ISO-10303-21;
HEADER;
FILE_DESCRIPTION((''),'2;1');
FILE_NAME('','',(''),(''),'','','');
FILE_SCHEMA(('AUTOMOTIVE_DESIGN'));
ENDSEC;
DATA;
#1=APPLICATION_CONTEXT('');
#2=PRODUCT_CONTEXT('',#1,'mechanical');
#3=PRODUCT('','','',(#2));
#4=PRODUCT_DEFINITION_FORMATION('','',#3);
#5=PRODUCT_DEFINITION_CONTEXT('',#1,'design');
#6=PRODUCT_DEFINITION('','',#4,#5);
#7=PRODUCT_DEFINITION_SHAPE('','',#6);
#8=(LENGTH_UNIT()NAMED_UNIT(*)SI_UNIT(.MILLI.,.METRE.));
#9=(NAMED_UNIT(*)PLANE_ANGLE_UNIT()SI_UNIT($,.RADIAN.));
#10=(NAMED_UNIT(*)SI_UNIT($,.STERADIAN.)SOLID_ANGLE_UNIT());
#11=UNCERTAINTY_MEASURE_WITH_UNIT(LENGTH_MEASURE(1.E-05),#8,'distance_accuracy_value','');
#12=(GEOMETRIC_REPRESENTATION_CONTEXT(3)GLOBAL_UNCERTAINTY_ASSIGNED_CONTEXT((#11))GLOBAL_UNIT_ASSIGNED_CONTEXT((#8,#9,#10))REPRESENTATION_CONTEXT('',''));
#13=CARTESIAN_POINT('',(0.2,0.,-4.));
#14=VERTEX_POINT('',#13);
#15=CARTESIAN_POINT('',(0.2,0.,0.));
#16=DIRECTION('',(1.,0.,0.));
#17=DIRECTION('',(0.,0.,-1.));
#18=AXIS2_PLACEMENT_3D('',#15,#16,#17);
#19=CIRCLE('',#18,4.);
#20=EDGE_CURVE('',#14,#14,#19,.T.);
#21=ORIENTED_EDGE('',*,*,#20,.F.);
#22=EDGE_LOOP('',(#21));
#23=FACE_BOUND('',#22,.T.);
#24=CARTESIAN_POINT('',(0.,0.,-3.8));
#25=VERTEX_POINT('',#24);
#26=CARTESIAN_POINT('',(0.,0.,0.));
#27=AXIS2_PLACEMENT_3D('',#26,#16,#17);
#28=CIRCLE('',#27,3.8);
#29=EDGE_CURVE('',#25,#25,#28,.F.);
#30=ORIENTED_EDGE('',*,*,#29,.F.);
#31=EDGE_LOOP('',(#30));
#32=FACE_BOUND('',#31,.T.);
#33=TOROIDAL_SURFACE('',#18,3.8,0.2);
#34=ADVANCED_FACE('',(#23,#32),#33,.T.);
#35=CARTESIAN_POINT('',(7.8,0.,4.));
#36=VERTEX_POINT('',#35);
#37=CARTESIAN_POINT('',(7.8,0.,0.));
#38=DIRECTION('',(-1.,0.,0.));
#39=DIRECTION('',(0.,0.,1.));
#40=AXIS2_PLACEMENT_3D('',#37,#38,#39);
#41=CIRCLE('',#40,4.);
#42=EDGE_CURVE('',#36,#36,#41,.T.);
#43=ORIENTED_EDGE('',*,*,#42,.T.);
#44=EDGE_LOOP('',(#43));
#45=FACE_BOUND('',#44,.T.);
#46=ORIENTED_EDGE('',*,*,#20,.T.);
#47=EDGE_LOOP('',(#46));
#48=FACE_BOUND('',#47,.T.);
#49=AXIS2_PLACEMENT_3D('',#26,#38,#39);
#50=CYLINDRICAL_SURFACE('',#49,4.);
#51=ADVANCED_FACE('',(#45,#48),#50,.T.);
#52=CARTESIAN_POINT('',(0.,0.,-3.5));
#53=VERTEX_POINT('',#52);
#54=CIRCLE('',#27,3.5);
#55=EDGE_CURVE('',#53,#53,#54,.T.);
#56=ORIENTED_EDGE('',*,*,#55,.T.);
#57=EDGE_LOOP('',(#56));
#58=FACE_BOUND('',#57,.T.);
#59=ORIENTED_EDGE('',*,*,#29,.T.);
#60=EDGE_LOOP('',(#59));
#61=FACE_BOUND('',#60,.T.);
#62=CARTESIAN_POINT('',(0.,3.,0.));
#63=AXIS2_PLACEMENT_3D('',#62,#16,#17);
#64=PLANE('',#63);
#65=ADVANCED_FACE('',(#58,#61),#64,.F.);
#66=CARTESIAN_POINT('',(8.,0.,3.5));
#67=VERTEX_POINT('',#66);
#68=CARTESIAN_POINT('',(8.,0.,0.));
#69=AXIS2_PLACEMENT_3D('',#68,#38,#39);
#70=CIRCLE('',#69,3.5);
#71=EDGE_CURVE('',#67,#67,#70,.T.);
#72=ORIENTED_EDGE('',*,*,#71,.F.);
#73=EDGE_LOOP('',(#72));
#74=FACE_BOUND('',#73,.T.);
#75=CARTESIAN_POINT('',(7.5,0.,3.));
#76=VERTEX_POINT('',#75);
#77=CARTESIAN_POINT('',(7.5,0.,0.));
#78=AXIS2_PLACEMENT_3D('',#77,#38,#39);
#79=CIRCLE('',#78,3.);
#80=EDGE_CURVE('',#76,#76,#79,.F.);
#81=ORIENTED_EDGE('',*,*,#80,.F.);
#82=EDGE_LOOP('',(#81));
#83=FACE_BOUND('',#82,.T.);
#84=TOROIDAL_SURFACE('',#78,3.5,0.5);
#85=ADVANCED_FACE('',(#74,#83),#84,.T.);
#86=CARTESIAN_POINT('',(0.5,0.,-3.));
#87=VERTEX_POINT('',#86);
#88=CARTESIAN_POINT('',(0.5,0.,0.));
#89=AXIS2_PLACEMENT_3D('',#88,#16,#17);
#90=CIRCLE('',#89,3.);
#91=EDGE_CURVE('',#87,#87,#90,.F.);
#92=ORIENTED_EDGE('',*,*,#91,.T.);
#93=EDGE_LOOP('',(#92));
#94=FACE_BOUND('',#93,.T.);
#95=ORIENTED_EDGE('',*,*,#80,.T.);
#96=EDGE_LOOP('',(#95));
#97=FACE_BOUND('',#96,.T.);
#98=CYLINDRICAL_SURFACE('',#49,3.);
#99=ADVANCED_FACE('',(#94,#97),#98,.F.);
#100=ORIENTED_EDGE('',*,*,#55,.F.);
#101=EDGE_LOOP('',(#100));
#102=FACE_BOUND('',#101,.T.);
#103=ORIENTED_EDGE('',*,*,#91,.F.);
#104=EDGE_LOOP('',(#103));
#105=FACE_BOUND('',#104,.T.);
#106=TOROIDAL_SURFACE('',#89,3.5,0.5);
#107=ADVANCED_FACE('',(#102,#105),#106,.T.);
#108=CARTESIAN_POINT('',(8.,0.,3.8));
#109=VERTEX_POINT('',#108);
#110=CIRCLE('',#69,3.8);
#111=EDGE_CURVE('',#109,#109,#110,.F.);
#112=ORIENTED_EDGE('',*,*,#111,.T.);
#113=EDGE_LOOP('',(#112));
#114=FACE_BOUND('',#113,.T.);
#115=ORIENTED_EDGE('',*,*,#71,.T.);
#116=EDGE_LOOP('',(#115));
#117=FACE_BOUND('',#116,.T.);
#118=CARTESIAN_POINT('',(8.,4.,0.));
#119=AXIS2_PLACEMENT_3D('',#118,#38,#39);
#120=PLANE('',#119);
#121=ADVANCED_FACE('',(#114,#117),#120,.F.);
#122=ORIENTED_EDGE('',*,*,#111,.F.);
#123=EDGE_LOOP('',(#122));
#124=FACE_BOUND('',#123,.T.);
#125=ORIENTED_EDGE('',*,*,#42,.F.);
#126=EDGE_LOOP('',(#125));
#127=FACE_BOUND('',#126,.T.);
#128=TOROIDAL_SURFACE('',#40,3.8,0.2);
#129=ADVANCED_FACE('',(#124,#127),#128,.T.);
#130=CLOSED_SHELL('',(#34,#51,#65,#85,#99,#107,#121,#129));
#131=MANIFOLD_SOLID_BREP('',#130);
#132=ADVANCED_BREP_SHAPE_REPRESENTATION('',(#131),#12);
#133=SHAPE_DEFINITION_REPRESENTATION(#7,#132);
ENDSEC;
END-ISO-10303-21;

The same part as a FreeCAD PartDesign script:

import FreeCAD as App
import Part
import Sketcher
from FreeCAD import Vector
Q = App.Units.Quantity


def edges_at(feature, points):
    """Names of the edges that pass closest to the given points."""
    edges = feature.Shape.Edges
    near = lambda p: min(range(len(edges)), key=lambda i: edges[i].distToShape(Part.Vertex(*p))[0])
    return sorted({f"Edge{near(p) + 1}" for p in points})


def add_polygon(sketch, points):
    """Adds a closed chain of lines whose ends are joined by coincident constraints."""
    first, n = sketch.GeometryCount, len(points)
    for a, b in zip(points, points[1:] + points[:1]):
        sketch.addGeometry(Part.LineSegment(App.Vector(*a, 0), App.Vector(*b, 0)), False)
    for i in range(n):
        sketch.addConstraint(Sketcher.Constraint("Coincident", first + i, 2, first + (i + 1) % n, 1))

doc = App.newDocument("Part")
body = doc.addObject("PartDesign::Body", "Body")

# Sketch on XY plane
sketch1 = doc.addObject("Sketcher::SketchObject", "Sketch")
body.addObject(sketch1)
sketch1.AttachmentSupport = (doc.XY_Plane, [""])
sketch1.MapMode = "FlatFace"
add_polygon(sketch1, [(0, 4), (0, 3), (8, 3), (8, 4)])  # lines 0-3
sketch1.addConstraint(Sketcher.Constraint("Vertical", 0))
sketch1.addConstraint(Sketcher.Constraint("Horizontal", 1))
sketch1.addConstraint(Sketcher.Constraint("Vertical", 2))
sketch1.addConstraint(Sketcher.Constraint("Horizontal", 3))
sketch1.addConstraint(Sketcher.Constraint("PointOnObject", 0, 2, -2))
sketch1.addConstraint(Sketcher.Constraint("DistanceX", 1, 1, 1, 2, Q("8 mm")))
sketch1.addConstraint(Sketcher.Constraint("DistanceY", 0, 2, 0, 1, Q("1 mm")))
sketch1.addConstraint(Sketcher.Constraint("DistanceY", -1, 1, 0, 2, Q("3 mm")))
revolution = doc.addObject("PartDesign::Revolution", "Revolution")
body.addObject(revolution)
revolution.Profile = sketch1
revolution.ReferenceAxis = (sketch1, ["H_Axis"])
revolution.Angle = 360
doc.recompute()

fillet = doc.addObject("PartDesign::Fillet", "Fillet")
body.addObject(fillet)
fillet.Base = (revolution, edges_at(revolution, [(8, 0, -4), (0, 0, -4)]))
fillet.Radius = 0.2
doc.recompute()

fillet2 = doc.addObject("PartDesign::Fillet", "Fillet001")
body.addObject(fillet2)
fillet2.Base = (fillet, edges_at(fillet, [(8, 0, -3), (0, 0, -3)]))
fillet2.Radius = 0.5

doc.recompute()
